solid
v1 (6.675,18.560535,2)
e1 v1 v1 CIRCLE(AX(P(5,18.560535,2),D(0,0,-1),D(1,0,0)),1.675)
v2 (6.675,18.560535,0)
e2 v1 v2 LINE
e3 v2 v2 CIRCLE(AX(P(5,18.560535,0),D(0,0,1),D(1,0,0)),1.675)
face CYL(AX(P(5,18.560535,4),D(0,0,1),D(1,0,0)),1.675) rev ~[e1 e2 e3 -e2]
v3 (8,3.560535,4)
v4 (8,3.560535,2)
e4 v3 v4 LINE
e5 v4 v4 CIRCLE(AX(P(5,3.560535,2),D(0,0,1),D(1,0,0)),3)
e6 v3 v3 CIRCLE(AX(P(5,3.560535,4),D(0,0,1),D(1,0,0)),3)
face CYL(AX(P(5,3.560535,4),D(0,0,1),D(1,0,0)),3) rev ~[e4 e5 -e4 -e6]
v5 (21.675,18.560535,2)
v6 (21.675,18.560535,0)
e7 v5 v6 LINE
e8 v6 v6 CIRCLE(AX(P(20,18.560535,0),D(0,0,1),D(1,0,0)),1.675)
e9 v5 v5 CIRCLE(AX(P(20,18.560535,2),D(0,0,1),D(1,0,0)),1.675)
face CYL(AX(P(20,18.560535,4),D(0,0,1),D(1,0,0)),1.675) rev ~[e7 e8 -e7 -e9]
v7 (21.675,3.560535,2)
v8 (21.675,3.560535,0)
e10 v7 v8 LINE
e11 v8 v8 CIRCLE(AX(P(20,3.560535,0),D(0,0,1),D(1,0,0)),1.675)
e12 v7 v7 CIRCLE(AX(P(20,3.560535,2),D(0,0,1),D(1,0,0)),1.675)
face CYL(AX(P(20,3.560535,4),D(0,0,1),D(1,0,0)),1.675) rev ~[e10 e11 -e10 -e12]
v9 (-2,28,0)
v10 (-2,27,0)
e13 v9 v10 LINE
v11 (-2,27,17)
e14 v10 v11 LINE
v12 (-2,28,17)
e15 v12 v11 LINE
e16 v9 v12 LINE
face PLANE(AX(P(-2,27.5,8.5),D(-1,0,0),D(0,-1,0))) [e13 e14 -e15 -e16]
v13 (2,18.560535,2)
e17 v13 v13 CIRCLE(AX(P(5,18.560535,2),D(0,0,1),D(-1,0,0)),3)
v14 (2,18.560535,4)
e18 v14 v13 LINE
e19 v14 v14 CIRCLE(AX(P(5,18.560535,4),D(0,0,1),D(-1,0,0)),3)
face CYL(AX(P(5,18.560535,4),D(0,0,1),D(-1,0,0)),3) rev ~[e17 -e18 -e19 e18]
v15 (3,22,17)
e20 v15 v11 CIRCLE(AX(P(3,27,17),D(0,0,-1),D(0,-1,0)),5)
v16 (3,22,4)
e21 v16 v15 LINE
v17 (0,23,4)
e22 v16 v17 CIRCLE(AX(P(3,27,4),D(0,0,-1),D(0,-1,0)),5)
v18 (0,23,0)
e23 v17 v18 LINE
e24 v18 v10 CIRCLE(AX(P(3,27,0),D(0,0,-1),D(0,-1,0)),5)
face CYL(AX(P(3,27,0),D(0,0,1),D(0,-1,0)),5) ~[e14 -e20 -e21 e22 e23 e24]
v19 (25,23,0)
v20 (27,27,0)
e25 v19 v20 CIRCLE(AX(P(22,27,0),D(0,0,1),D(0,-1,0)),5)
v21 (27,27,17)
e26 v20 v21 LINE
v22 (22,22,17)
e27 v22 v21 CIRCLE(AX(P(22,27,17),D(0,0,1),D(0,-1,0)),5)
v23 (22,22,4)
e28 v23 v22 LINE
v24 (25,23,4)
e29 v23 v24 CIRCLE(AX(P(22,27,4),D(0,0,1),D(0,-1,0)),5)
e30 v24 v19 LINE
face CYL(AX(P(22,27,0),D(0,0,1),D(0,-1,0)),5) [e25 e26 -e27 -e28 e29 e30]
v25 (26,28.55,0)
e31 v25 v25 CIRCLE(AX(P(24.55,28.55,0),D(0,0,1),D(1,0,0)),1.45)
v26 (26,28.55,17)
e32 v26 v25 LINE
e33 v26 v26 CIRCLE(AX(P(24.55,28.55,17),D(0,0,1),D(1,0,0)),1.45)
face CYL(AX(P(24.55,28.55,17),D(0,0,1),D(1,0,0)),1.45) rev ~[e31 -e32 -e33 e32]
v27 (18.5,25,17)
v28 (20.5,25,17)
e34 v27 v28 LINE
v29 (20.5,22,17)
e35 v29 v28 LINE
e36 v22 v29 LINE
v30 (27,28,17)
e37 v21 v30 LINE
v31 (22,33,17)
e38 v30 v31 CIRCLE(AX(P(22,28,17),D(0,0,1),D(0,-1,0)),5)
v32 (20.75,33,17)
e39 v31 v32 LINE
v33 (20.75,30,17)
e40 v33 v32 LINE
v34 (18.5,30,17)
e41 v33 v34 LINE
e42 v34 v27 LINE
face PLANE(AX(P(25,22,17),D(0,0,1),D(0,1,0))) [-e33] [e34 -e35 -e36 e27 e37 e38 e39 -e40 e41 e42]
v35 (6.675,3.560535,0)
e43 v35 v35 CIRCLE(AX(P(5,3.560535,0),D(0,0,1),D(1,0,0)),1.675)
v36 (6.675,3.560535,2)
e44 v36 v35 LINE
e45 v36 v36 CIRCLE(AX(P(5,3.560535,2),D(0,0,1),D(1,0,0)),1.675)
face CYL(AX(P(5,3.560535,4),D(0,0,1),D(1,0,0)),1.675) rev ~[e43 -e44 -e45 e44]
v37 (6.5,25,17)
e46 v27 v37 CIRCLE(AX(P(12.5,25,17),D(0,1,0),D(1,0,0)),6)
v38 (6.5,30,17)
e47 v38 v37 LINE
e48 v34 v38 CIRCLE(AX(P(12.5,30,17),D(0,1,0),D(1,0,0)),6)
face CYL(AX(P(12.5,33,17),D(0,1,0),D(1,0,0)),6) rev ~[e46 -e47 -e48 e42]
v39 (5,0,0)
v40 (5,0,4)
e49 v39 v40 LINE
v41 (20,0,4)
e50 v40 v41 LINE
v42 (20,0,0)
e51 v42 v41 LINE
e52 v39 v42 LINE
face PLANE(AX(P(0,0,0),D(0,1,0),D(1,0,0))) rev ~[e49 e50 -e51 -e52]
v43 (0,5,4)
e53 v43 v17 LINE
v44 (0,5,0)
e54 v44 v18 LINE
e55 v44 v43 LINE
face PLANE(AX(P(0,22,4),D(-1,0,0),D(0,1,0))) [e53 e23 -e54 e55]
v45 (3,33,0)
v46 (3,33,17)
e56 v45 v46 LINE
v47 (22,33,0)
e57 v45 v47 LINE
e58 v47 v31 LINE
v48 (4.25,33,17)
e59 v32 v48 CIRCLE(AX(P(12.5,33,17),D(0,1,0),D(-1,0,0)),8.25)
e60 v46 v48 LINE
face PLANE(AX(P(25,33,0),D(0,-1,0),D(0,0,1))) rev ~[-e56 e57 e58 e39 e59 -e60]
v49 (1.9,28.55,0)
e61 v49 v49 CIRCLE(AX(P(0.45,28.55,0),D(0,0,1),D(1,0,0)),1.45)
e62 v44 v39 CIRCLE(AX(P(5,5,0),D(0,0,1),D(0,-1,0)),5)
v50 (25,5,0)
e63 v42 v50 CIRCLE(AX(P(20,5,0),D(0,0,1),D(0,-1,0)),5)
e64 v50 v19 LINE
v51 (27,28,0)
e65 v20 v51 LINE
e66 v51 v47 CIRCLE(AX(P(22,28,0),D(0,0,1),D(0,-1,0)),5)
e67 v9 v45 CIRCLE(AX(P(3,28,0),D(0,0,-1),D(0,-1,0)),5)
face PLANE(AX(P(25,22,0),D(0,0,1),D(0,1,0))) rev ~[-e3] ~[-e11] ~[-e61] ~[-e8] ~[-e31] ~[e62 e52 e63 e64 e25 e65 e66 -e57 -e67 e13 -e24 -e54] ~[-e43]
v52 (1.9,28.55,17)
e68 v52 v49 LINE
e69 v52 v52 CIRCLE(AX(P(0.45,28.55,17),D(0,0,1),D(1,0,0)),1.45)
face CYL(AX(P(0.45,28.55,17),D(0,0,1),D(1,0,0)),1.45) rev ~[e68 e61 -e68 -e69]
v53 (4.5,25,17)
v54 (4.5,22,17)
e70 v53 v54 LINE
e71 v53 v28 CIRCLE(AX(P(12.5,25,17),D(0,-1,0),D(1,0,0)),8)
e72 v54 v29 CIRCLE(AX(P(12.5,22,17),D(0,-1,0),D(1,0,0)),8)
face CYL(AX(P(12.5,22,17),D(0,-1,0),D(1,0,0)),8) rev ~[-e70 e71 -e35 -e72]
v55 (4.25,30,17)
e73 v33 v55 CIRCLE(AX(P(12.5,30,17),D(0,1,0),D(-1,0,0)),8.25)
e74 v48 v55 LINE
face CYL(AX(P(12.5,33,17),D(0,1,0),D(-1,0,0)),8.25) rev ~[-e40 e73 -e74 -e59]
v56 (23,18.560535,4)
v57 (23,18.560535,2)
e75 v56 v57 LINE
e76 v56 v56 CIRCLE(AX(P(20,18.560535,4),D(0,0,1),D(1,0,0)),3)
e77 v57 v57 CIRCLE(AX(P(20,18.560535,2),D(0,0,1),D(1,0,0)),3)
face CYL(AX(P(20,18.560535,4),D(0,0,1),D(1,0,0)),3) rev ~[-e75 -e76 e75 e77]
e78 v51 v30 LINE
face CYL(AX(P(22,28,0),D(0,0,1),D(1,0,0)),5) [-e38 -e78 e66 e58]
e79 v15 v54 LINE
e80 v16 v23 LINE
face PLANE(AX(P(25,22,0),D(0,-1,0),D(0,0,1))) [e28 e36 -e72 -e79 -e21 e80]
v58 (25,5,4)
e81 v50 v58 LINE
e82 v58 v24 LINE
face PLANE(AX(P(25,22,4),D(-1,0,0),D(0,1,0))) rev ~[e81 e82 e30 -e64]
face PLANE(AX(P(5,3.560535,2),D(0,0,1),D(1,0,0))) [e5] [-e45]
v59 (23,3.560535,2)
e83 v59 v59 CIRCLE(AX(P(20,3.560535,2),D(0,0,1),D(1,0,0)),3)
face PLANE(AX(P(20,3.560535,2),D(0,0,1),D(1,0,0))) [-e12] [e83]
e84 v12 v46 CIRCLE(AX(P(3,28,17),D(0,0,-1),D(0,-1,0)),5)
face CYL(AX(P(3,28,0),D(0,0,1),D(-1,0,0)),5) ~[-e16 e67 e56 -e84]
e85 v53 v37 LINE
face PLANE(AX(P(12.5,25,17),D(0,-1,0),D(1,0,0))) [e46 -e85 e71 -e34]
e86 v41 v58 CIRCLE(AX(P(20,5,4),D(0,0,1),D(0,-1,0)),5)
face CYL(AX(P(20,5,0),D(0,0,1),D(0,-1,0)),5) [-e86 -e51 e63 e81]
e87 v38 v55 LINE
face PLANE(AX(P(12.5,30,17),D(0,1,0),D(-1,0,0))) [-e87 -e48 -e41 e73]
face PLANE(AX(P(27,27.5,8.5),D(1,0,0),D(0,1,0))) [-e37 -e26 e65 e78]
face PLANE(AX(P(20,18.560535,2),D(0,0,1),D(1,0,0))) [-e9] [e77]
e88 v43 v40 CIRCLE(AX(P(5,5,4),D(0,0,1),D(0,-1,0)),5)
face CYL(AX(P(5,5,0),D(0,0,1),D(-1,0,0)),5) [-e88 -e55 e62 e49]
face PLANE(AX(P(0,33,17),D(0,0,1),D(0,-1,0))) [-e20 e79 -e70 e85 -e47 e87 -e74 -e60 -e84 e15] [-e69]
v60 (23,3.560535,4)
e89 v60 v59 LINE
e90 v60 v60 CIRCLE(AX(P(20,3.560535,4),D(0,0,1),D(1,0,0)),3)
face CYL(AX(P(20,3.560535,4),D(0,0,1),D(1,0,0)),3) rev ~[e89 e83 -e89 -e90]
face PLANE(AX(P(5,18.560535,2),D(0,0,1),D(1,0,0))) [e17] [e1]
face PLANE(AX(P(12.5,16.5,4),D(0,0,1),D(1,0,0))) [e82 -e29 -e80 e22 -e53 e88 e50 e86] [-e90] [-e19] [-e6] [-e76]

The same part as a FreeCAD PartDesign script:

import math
import FreeCAD as App
import Part
import Sketcher

V = App.Vector


def edges_at(feature, points):
    """Names of the edges that pass closest to the given points."""
    edges = feature.Shape.Edges
    near = lambda p: min(range(len(edges)), key=lambda i: edges[i].distToShape(Part.Vertex(*p))[0])
    return sorted({f"Edge{near(p) + 1}" for p in points})


def add_polygon(sketch, points):
    """Adds a closed chain of lines whose ends are joined by coincident constraints."""
    first, n = sketch.GeometryCount, len(points)
    for a, b in zip(points, points[1:] + points[:1]):
        sketch.addGeometry(Part.LineSegment(App.Vector(*a, 0), App.Vector(*b, 0)), False)
    for i in range(n):
        sketch.addConstraint(Sketcher.Constraint("Coincident", first + i, 2, first + (i + 1) % n, 1))

doc = App.newDocument("Part")
body = doc.addObject("PartDesign::Body", "Body")

# Sketch on XY plane
sketch1 = body.newObject("Sketcher::SketchObject", "Sketch")
sketch1.AttachmentSupport = (doc.getObject("XY_Plane"), [""])
sketch1.MapMode = "FlatFace"
add_polygon(sketch1, [(0, 33), (0, 0), (25, 0), (25, 33)])  # lines 0-3
sketch1.addConstraint([
    Sketcher.Constraint("Vertical", 0),
    Sketcher.Constraint("Horizontal", 1),
    Sketcher.Constraint("Vertical", 2),
    Sketcher.Constraint("Horizontal", 3),
    Sketcher.Constraint("Coincident", 0, 2, -1, 1),
    Sketcher.Constraint("DistanceX", 1, 1, 1, 2, 25.0),
    Sketcher.Constraint("DistanceY", 0, 2, 0, 1, 33.0),
])
pad1 = body.newObject("PartDesign::Pad", "Pad")
pad1.Profile = sketch1
pad1.Length = 4

# Sketch on XY plane
sketch2 = body.newObject("Sketcher::SketchObject", "Sketch001")
sketch2.AttachmentSupport = (doc.getObject("XY_Plane"), [""])
sketch2.MapMode = "FlatFace"
sketch2.AttachmentOffset = App.Placement(V(0, 0, 4), App.Rotation())
sketch2.addGeometry([
    Part.Circle(V(5, 18.560535, 0), V(0, 0, 1), 1.675),
    Part.Circle(V(20, 18.560535, 0), V(0, 0, 1), 1.675),
    Part.Circle(V(20, 3.560535, 0), V(0, 0, 1), 1.675),
    Part.Circle(V(5, 3.560535, 0), V(0, 0, 1), 1.675),
], False)
sketch2.addConstraint([
    Sketcher.Constraint("Equal", 0, 1),
    Sketcher.Constraint("Equal", 1, 2),
    Sketcher.Constraint("Equal", 2, 3),
    Sketcher.Constraint("Horizontal", 0, 3, 1, 3),
    Sketcher.Constraint("Horizontal", 2, 3, 3, 3),
    Sketcher.Constraint("Vertical", 1, 3, 2, 3),
    Sketcher.Constraint("Vertical", 0, 3, 3, 3),
    Sketcher.Constraint("Diameter", 0, 3.35),
    Sketcher.Constraint("DistanceX", -1, 1, 0, 3, 5.0),
    Sketcher.Constraint("DistanceX", -1, 1, 1, 3, 20.0),
    Sketcher.Constraint("DistanceY", 2, 3, 1, 3, 15.0),
    Sketcher.Constraint("DistanceY", -1, 1, 0, 3, 18.560535),
])
pocket1 = body.newObject("PartDesign::Pocket", "Pocket")
pocket1.Profile = sketch2
pocket1.Length = 25

# Sketch on XY plane
sketch3 = body.newObject("Sketcher::SketchObject", "Sketch002")
sketch3.AttachmentSupport = (doc.getObject("XY_Plane"), [""])
sketch3.MapMode = "FlatFace"
sketch3.AttachmentOffset = App.Placement(V(0, 0, 4), App.Rotation())
add_polygon(sketch3, [(0, 33), (0, 22), (25, 22), (25, 33)])  # lines 0-3
sketch3.addConstraint([
    Sketcher.Constraint("Vertical", 0),
    Sketcher.Constraint("Horizontal", 1),
    Sketcher.Constraint("Vertical", 2),
    Sketcher.Constraint("Horizontal", 3),
    Sketcher.Constraint("PointOnObject", 0, 2, -2),
    Sketcher.Constraint("DistanceX", 1, 1, 1, 2, 25.0),
    Sketcher.Constraint("DistanceY", 0, 2, 0, 1, 11.0),
    Sketcher.Constraint("DistanceY", -1, 1, 0, 2, 22.0),
])
pad2 = body.newObject("PartDesign::Pad", "Pad001")
pad2.Profile = sketch3
pad2.Length = 13

# Sketch on XZ plane
sketch4 = body.newObject("Sketcher::SketchObject", "Sketch003")
sketch4.AttachmentSupport = (doc.getObject("XZ_Plane"), [""])
sketch4.MapMode = "FlatFace"
sketch4.AttachmentOffset = App.Placement(V(0, 0, -33), App.Rotation())
sketch4.addGeometry([
    Part.ArcOfCircle(Part.Circle(V(12.5, 17, 0), V(0, 0, 1), 6), math.radians(180), math.radians(360)),
    Part.LineSegment(V(6.5, 17, 0), V(18.5, 17, 0)),
], False)
sketch4.addConstraint([
    Sketcher.Constraint("Coincident", 0, 1, 1, 1),
    Sketcher.Constraint("Coincident", 1, 2, 0, 2),
    Sketcher.Constraint("Horizontal", 1),
    Sketcher.Constraint("Radius", 0, 6.0),
    Sketcher.Constraint("DistanceY", -1, 1, 0, 3, 17.0),
    Sketcher.Constraint("DistanceY", -1, 1, 0, 1, 17.0),
    Sketcher.Constraint("DistanceX", -1, 1, 0, 3, 12.5),
])
pocket2 = body.newObject("PartDesign::Pocket", "Pocket001")
pocket2.Profile = sketch4
pocket2.Length = 9
pocket2.Reversed = True

# Sketch on XZ plane
sketch5 = body.newObject("Sketcher::SketchObject", "Sketch004")
sketch5.AttachmentSupport = (doc.getObject("XZ_Plane"), [""])
sketch5.MapMode = "FlatFace"
sketch5.AttachmentOffset = App.Placement(V(0, 0, -22), App.Rotation())
sketch5.addGeometry(Part.Circle(V(12.5, 17, 0), V(0, 0, 1), 8), False)
sketch5.addConstraint([
    Sketcher.Constraint("Diameter", 0, 16.0),
    Sketcher.Constraint("DistanceY", -1, 1, 0, 3, 17.0),
    Sketcher.Constraint("DistanceX", -1, 1, 0, 3, 12.5),
])
pocket3 = body.newObject("PartDesign::Pocket", "Pocket002")
pocket3.Profile = sketch5
pocket3.Length = 3

# Sketch on XY plane
sketch6 = body.newObject("Sketcher::SketchObject", "Sketch005")
sketch6.AttachmentSupport = (doc.getObject("XY_Plane"), [""])
sketch6.MapMode = "FlatFace"
sketch6.AttachmentOffset = App.Placement(V(0, 0, 4), App.Rotation())
sketch6.addGeometry([
    Part.Circle(V(5, 18.560535, 0), V(0, 0, 1), 3),  # 0
    Part.Circle(V(5, 18.560535, 0), V(0, 0, 1), 1.675),  # 1
    Part.Circle(V(20, 18.560535, 0), V(0, 0, 1), 3),  # 2
    Part.Circle(V(20, 18.560535, 0), V(0, 0, 1), 1.675),  # 3
    Part.Circle(V(20, 3.560535, 0), V(0, 0, 1), 3),  # 4
    Part.Circle(V(20, 3.560535, 0), V(0, 0, 1), 1.675),  # 5
    Part.Circle(V(5, 3.560535, 0), V(0, 0, 1), 3),  # 6
    Part.Circle(V(5, 3.560535, 0), V(0, 0, 1), 1.675),  # 7
], False)
sketch6.addConstraint([
    Sketcher.Constraint("Coincident", 1, 3, 0, 3),
    Sketcher.Constraint("Coincident", 3, 3, 2, 3),
    Sketcher.Constraint("Coincident", 5, 3, 4, 3),
    Sketcher.Constraint("Coincident", 7, 3, 6, 3),
    Sketcher.Constraint("Equal", 0, 2),
    Sketcher.Constraint("Equal", 1, 3),
    Sketcher.Constraint("Equal", 2, 4),
    Sketcher.Constraint("Equal", 3, 5),
    Sketcher.Constraint("Equal", 4, 6),
    Sketcher.Constraint("Equal", 5, 7),
    Sketcher.Constraint("Horizontal", 1, 3, 2, 3),
    Sketcher.Constraint("Horizontal", 5, 3, 6, 3),
    Sketcher.Constraint("Vertical", 3, 3, 4, 3),
    Sketcher.Constraint("Vertical", 1, 3, 6, 3),
    Sketcher.Constraint("Diameter", 0, 6.0),
    Sketcher.Constraint("Diameter", 1, 3.35),
    Sketcher.Constraint("DistanceX", -1, 1, 0, 3, 5.0),
    Sketcher.Constraint("DistanceX", -1, 1, 2, 3, 20.0),
    Sketcher.Constraint("DistanceY", 4, 3, 2, 3, 15.0),
    Sketcher.Constraint("DistanceY", -1, 1, 0, 3, 18.560535),
])
pocket4 = body.newObject("PartDesign::Pocket", "Pocket003")
pocket4.Profile = sketch6
pocket4.Length = 2
doc.recompute()

fillet = body.newObject("PartDesign::Fillet", "Fillet")
fillet.Base = (pocket4, edges_at(pocket4, [(0, 0, 2), (25, 0, 2)]))
fillet.Radius = 5

# Sketch on YZ plane
sketch7 = body.newObject("Sketcher::SketchObject", "Sketch006")
sketch7.AttachmentSupport = (doc.getObject("YZ_Plane"), [""])
sketch7.MapMode = "FlatFace"
add_polygon(sketch7, [(33, 17), (33, 0), (22, 0), (22, 17)])  # lines 0-3
sketch7.addConstraint([
    Sketcher.Constraint("Vertical", 0),
    Sketcher.Constraint("Horizontal", 1),
    Sketcher.Constraint("Vertical", 2),
    Sketcher.Constraint("Horizontal", 3),
    Sketcher.Constraint("PointOnObject", 0, 2, -1),
    Sketcher.Constraint("DistanceX", 1, 2, 1, 1, 11.0),
    Sketcher.Constraint("DistanceY", 0, 2, 0, 1, 17.0),
    Sketcher.Constraint("DistanceX", -1, 1, 0, 2, 33.0),
])
pad3 = body.newObject("PartDesign::Pad", "Pad002")
pad3.Profile = sketch7
pad3.Length = 2
pad3.Reversed = True

# Sketch on YZ plane
sketch8 = body.newObject("Sketcher::SketchObject", "Sketch007")
sketch8.AttachmentSupport = (doc.getObject("YZ_Plane"), [""])
sketch8.MapMode = "FlatFace"
sketch8.AttachmentOffset = App.Placement(V(0, 0, 25), App.Rotation())
add_polygon(sketch8, [(22, 17), (22, 0), (33, 0), (33, 17)])  # lines 0-3
sketch8.addConstraint([
    Sketcher.Constraint("Vertical", 0),
    Sketcher.Constraint("Horizontal", 1),
    Sketcher.Constraint("Vertical", 2),
    Sketcher.Constraint("Horizontal", 3),
    Sketcher.Constraint("PointOnObject", 0, 2, -1),
    Sketcher.Constraint("DistanceX", 1, 1, 1, 2, 11.0),
    Sketcher.Constraint("DistanceY", 0, 2, 0, 1, 17.0),
    Sketcher.Constraint("DistanceX", -1, 1, 0, 2, 22.0),
])
pad4 = body.newObject("PartDesign::Pad", "Pad003")
pad4.Profile = sketch8
pad4.Length = 2

# Sketch on XY plane
sketch9 = body.newObject("Sketcher::SketchObject", "Sketch008")
sketch9.AttachmentSupport = (doc.getObject("XY_Plane"), [""])
sketch9.MapMode = "FlatFace"
sketch9.AttachmentOffset = App.Placement(V(0, 0, 17), App.Rotation())
sketch9.addGeometry([
    Part.Circle(V(0.45, 28.55, 0), V(0, 0, 1), 1.45),
    Part.Circle(V(24.55, 28.55, 0), V(0, 0, 1), 1.45),
], False)
sketch9.addConstraint([
    Sketcher.Constraint("Equal", 0, 1),
    Sketcher.Constraint("Horizontal", 0, 3, 1, 3),
    Sketcher.Constraint("Diameter", 0, 2.9),
    Sketcher.Constraint("DistanceX", 0, 3, 1, 3, 24.1),
    Sketcher.Constraint("DistanceX", -1, 1, 0, 3, 0.45),
    Sketcher.Constraint("DistanceY", -1, 1, 0, 3, 28.55),
])
pocket5 = body.newObject("PartDesign::Pocket", "Pocket004")
pocket5.Profile = sketch9
pocket5.Length = 25
doc.recompute()

fillet2 = body.newObject("PartDesign::Fillet", "Fillet001")
fillet2.Base = (pocket5, edges_at(pocket5, [
    (-2, 22, 8.5),
    (-2, 33, 8.5),
    (27, 33, 8.5),
    (27, 22, 8.5),
]))
fillet2.Radius = 5

# Sketch on XZ plane
sketch10 = body.newObject("Sketcher::SketchObject", "Sketch009")
sketch10.AttachmentSupport = (doc.getObject("XZ_Plane"), [""])
sketch10.MapMode = "FlatFace"
sketch10.AttachmentOffset = App.Placement(V(0, 0, -33), App.Rotation())
sketch10.addGeometry(Part.Circle(V(12.5, 17, 0), V(0, 0, 1), 8.25), False)
sketch10.addConstraint([
    Sketcher.Constraint("Diameter", 0, 16.5),
    Sketcher.Constraint("DistanceY", -1, 1, 0, 3, 17.0),
    Sketcher.Constraint("DistanceX", -1, 1, 0, 3, 12.5),
])
pocket6 = body.newObject("PartDesign::Pocket", "Pocket005")
pocket6.Profile = sketch10
pocket6.Length = 3
pocket6.Reversed = True

doc.recompute()
